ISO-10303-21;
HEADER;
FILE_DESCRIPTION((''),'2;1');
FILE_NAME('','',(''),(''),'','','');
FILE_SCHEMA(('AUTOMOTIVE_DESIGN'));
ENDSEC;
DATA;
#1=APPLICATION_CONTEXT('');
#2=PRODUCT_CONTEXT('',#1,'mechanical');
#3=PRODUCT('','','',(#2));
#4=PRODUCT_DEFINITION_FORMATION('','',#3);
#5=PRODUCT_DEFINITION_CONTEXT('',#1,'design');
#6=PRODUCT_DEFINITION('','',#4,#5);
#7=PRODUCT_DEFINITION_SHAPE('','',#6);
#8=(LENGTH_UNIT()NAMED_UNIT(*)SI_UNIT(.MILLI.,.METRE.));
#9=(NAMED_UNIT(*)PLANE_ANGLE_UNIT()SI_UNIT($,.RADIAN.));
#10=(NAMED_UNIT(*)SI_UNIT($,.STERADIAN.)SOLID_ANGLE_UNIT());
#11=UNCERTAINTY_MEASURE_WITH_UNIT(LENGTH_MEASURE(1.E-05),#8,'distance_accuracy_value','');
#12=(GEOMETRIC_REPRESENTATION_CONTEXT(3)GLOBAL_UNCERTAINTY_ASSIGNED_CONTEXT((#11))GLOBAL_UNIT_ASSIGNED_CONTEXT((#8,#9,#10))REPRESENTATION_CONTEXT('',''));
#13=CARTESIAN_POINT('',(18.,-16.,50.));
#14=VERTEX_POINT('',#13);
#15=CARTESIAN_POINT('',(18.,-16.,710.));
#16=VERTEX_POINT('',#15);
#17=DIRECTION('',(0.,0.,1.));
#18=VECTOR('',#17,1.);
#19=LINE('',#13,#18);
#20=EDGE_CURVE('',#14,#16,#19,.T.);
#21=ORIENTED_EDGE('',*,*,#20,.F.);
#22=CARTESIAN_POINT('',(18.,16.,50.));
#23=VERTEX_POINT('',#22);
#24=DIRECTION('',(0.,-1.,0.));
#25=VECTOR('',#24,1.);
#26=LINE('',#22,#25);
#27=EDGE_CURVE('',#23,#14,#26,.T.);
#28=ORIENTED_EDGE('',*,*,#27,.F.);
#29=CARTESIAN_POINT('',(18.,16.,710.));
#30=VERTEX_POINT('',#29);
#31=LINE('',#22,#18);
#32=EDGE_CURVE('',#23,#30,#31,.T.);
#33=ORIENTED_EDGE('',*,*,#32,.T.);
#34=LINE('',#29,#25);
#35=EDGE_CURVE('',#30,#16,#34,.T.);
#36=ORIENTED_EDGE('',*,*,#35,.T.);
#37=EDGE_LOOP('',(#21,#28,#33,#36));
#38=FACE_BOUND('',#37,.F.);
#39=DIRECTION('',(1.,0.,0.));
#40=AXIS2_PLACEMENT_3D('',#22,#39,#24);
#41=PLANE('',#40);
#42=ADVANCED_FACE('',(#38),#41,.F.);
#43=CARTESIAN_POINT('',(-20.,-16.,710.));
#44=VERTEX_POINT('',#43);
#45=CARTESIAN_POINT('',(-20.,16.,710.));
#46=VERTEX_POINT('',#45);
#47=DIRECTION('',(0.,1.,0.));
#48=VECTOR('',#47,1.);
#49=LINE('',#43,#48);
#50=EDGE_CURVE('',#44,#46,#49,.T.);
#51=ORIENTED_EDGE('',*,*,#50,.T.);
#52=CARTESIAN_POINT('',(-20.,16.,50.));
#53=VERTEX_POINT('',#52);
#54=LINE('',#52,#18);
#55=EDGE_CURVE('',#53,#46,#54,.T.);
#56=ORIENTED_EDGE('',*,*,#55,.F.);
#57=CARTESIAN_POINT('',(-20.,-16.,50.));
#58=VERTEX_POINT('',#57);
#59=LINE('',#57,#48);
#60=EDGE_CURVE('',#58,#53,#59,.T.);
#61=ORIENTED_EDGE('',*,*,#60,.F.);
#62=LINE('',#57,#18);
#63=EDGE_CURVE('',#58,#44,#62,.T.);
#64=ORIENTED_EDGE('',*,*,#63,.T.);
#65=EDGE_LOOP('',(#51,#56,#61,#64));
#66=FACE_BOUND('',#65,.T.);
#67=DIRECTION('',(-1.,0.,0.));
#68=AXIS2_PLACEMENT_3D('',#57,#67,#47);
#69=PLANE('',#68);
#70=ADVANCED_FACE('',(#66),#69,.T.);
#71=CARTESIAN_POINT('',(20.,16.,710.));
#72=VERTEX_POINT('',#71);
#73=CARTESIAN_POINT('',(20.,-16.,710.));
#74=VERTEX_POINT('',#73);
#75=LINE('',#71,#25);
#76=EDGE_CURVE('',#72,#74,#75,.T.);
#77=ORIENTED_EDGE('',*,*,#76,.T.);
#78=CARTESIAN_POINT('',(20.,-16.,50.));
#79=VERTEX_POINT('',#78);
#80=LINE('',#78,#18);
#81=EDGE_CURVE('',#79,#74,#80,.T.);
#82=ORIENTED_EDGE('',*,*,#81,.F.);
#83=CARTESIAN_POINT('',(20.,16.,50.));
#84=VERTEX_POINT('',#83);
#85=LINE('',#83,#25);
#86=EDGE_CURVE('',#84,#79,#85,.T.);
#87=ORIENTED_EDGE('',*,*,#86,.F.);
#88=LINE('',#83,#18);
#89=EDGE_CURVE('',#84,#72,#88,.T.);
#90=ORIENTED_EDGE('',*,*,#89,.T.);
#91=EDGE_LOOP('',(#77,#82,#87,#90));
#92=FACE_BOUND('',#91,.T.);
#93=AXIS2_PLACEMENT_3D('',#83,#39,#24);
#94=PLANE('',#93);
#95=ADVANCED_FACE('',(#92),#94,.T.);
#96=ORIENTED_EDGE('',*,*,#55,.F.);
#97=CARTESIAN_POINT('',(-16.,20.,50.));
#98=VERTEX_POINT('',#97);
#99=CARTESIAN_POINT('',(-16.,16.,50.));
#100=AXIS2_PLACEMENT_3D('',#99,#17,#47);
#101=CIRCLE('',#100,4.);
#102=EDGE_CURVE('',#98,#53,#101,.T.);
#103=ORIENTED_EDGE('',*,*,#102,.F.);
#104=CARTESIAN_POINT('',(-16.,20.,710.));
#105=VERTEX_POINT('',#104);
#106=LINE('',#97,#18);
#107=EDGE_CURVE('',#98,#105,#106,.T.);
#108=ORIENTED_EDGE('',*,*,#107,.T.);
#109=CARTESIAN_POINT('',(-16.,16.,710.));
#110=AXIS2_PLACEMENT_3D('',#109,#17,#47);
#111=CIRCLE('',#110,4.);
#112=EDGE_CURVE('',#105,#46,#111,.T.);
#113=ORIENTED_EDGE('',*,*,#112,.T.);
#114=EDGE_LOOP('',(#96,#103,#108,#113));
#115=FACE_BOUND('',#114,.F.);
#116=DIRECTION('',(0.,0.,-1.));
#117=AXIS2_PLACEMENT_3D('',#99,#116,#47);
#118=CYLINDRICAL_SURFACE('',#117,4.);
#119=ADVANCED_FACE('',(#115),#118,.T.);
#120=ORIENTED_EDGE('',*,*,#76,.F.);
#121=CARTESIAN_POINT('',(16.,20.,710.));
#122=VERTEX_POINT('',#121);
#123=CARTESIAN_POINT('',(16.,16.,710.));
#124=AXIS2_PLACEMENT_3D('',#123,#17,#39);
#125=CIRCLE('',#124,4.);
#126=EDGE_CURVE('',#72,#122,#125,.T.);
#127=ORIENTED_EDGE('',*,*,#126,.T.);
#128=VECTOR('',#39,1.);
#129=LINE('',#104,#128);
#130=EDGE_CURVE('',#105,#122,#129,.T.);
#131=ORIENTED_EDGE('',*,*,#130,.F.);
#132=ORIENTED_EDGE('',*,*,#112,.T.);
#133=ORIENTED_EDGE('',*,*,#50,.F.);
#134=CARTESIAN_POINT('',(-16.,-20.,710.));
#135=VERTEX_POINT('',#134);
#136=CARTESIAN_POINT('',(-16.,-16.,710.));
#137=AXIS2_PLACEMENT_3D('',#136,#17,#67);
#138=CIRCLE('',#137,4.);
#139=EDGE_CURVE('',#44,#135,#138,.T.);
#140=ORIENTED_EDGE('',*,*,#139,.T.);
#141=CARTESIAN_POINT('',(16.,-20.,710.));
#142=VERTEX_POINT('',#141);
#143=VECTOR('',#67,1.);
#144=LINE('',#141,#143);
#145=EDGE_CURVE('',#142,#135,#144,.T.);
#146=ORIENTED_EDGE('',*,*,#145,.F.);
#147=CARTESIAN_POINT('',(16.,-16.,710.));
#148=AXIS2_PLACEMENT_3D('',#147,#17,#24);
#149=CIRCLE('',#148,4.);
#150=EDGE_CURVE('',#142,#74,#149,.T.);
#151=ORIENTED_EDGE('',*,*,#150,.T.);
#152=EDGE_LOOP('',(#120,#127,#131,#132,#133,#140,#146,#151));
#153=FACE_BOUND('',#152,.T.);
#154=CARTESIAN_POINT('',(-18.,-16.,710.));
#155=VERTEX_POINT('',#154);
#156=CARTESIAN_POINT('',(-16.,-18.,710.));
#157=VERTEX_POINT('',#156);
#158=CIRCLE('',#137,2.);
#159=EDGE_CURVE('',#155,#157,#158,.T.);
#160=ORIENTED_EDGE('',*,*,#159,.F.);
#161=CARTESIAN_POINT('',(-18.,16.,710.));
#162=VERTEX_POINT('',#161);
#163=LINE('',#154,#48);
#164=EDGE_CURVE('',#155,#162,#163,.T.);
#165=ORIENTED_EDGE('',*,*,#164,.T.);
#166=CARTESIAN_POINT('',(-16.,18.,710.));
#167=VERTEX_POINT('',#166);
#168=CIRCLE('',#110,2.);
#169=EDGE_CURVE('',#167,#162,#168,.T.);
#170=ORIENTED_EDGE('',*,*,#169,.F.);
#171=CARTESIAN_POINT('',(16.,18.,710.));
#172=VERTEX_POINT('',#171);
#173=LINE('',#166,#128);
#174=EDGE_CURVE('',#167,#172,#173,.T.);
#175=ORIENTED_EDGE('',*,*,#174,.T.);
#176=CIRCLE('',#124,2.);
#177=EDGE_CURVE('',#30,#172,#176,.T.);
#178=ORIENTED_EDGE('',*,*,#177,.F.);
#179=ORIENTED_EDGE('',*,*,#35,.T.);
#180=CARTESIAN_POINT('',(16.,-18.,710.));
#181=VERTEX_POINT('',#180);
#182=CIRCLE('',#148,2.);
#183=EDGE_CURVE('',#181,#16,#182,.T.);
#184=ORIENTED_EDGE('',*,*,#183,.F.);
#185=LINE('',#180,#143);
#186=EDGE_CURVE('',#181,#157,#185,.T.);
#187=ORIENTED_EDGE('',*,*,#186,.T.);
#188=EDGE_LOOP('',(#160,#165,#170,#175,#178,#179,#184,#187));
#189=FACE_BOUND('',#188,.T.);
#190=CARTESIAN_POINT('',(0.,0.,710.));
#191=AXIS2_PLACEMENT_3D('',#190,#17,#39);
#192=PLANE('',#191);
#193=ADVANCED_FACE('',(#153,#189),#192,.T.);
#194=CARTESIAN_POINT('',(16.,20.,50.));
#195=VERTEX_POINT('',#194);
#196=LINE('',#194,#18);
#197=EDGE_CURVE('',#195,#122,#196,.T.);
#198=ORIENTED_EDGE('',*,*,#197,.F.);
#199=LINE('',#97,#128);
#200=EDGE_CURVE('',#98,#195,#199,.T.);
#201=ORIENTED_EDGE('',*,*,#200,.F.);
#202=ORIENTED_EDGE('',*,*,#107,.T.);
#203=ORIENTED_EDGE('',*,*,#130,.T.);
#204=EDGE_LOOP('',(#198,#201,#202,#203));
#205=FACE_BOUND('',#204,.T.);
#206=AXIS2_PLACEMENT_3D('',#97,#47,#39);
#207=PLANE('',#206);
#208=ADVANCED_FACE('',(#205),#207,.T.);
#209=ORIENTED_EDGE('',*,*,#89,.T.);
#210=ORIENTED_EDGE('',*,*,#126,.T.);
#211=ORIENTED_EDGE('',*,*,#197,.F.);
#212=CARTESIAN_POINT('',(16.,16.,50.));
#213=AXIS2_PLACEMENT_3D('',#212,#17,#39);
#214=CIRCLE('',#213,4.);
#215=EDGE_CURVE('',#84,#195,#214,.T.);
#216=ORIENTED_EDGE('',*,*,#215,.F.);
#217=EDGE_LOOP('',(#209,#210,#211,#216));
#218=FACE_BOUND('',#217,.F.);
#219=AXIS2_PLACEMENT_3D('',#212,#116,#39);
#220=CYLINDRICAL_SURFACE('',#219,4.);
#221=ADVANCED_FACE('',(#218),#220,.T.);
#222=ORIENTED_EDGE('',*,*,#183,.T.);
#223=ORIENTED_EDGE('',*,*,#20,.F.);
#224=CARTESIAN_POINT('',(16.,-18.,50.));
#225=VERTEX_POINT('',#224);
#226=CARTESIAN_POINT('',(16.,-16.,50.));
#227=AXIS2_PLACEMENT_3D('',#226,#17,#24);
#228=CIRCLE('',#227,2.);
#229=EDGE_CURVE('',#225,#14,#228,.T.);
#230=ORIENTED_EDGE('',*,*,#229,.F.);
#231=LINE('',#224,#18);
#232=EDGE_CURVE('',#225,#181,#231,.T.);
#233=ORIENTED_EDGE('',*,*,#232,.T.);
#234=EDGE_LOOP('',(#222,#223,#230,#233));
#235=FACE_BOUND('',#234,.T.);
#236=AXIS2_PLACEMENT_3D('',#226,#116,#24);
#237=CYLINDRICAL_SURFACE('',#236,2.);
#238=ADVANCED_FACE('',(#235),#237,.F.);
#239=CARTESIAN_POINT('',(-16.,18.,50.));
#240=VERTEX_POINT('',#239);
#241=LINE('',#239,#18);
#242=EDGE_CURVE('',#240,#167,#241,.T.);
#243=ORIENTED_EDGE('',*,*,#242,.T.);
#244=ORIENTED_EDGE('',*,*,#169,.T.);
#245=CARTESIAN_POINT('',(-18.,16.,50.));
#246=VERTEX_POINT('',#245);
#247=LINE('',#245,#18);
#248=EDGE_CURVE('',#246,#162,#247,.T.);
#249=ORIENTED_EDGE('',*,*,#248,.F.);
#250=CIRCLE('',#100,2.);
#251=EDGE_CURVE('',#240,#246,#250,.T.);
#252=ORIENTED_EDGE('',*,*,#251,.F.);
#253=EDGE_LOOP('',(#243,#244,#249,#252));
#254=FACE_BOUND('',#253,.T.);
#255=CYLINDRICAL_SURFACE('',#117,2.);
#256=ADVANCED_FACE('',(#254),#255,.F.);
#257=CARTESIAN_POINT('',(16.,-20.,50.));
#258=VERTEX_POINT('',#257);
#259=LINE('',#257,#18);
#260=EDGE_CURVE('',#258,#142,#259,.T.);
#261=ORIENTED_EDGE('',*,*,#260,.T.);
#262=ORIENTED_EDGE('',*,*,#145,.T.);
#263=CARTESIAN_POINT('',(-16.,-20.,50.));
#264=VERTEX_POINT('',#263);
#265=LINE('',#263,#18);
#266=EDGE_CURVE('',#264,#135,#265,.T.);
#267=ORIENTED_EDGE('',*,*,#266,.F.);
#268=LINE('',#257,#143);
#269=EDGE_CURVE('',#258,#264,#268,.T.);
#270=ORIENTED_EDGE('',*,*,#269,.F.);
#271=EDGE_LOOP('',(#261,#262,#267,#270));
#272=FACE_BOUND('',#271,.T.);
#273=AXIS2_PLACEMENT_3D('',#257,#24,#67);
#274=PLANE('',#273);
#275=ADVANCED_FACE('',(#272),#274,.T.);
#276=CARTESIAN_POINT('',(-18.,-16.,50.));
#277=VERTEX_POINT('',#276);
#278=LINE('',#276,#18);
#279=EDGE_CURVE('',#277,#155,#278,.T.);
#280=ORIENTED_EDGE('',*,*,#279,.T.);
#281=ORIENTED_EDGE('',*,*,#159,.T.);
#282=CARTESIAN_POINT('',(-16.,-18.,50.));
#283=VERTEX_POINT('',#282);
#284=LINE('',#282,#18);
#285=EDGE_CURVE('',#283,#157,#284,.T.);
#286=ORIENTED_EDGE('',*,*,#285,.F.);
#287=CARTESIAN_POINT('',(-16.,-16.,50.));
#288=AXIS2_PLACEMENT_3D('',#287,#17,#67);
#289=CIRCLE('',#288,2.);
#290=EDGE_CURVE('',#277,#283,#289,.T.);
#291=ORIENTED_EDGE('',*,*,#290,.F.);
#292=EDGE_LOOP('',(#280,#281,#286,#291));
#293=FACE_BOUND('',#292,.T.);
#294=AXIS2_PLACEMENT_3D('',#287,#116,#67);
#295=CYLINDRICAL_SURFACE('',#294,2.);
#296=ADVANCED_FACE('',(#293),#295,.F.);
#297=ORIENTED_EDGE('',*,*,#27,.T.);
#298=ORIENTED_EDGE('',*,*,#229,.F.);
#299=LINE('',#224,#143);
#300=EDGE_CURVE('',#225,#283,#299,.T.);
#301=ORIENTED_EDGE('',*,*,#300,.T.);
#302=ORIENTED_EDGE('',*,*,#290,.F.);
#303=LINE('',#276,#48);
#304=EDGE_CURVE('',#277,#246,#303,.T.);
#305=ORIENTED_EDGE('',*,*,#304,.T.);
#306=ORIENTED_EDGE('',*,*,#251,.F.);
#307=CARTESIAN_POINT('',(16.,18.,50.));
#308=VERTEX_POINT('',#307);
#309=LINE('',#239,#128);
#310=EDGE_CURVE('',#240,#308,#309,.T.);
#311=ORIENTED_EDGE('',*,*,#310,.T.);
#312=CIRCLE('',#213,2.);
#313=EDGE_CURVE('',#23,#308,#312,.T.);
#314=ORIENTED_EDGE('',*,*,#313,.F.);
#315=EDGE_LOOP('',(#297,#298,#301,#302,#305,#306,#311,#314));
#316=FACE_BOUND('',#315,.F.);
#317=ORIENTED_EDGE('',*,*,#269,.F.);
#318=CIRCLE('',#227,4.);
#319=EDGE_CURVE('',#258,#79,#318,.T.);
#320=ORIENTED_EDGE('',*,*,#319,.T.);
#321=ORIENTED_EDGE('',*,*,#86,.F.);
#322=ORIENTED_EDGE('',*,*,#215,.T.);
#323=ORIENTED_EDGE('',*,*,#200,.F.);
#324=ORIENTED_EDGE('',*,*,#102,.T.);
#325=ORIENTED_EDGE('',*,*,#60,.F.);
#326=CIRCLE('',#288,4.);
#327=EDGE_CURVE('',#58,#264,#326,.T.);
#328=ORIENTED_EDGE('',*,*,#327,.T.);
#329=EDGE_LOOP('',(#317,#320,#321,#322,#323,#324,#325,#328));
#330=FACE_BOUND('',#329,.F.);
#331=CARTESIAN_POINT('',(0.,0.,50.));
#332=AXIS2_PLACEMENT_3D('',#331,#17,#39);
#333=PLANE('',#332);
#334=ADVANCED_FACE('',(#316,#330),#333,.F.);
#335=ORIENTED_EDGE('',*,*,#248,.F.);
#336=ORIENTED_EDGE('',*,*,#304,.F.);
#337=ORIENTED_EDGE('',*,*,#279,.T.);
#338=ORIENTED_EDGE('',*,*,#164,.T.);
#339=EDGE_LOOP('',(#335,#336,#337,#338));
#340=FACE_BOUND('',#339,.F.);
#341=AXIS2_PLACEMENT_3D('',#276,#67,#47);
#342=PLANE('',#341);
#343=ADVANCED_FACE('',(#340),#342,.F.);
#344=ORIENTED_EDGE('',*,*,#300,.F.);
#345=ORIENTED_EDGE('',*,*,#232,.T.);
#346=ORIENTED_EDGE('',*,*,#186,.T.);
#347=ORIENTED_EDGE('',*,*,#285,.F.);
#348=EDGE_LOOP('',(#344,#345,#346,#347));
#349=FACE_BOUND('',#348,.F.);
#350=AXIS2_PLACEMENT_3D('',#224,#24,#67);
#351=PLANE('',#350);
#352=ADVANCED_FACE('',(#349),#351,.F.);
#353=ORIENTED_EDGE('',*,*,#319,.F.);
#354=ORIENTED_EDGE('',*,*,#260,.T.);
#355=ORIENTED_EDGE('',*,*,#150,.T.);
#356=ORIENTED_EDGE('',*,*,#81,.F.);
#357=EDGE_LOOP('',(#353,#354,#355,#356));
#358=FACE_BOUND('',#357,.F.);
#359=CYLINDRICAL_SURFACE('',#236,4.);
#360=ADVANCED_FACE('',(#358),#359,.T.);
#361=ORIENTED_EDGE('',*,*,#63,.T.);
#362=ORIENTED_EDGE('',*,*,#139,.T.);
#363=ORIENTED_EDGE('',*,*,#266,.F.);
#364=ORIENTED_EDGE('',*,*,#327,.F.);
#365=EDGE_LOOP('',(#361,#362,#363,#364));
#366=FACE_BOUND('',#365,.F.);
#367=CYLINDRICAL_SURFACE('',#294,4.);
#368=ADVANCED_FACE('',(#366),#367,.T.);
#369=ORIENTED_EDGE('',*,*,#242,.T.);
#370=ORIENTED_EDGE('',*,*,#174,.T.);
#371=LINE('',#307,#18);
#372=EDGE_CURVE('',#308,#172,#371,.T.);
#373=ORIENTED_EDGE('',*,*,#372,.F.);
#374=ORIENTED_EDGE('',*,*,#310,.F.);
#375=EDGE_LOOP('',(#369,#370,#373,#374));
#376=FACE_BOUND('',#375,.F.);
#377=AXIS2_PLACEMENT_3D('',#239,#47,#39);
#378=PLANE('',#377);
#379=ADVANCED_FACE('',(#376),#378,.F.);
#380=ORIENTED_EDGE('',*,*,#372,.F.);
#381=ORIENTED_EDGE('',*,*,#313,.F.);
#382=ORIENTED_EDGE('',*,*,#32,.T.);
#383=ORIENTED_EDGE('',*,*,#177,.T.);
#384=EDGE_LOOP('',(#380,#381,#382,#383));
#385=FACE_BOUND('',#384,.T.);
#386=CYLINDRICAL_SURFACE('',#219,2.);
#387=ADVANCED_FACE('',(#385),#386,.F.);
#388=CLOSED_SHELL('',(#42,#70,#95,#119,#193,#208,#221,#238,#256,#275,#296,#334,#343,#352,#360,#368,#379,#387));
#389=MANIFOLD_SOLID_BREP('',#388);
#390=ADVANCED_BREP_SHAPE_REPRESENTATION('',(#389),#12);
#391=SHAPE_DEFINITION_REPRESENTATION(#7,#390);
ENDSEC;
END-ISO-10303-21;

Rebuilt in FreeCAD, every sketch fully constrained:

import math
import FreeCAD as App
import Part
import Sketcher

V = App.Vector

doc = App.newDocument("Part")
body = doc.addObject("PartDesign::Body", "Body")

# Sketch on XY plane
sketch1 = doc.addObject("Sketcher::SketchObject", "Sketch")
body.addObject(sketch1)
sketch1.AttachmentSupport = (doc.XY_Plane, [""])
sketch1.MapMode = "FlatFace"
sketch1.AttachmentOffset = App.Placement(V(0, 0, 50), App.Rotation())
sketch1.addGeometry([
    Part.LineSegment(V(-20, 16, 0), V(-20, -16, 0)),  # 0
    Part.ArcOfCircle(Part.Circle(V(-16, -16, 0), V(0, 0, 1), 4), math.radians(180), math.radians(270)),  # 1
    Part.LineSegment(V(-16, -20, 0), V(16, -20, 0)),  # 2
    Part.ArcOfCircle(Part.Circle(V(16, -16, 0), V(0, 0, 1), 4), math.radians(-90), math.radians(0)),  # 3
    Part.LineSegment(V(20, -16, 0), V(20, 16, 0)),  # 4
    Part.ArcOfCircle(Part.Circle(V(16, 16, 0), V(0, 0, 1), 4), math.radians(0), math.radians(90)),  # 5
    Part.LineSegment(V(16, 20, 0), V(-16, 20, 0)),  # 6
    Part.ArcOfCircle(Part.Circle(V(-16, 16, 0), V(0, 0, 1), 4), math.radians(90), math.radians(180)),  # 7
    Part.ArcOfCircle(Part.Circle(V(-16, 16, 0), V(0, 0, 1), 2), math.radians(90), math.radians(180)),  # 8
    Part.LineSegment(V(-16, 18, 0), V(16, 18, 0)),  # 9
    Part.ArcOfCircle(Part.Circle(V(16, 16, 0), V(0, 0, 1), 2), math.radians(0), math.radians(90)),  # 10
    Part.LineSegment(V(18, 16, 0), V(18, -16, 0)),  # 11
    Part.ArcOfCircle(Part.Circle(V(16, -16, 0), V(0, 0, 1), 2), math.radians(-90), math.radians(0)),  # 12
    Part.LineSegment(V(16, -18, 0), V(-16, -18, 0)),  # 13
    Part.ArcOfCircle(Part.Circle(V(-16, -16, 0), V(0, 0, 1), 2), math.radians(180), math.radians(270)),  # 14
    Part.LineSegment(V(-18, -16, 0), V(-18, 16, 0)),  # 15
], False)
sketch1.addConstraint([
    Sketcher.Constraint("Tangent", 0, 2, 1, 1),
    Sketcher.Constraint("Tangent", 1, 2, 2, 1),
    Sketcher.Constraint("Tangent", 2, 2, 3, 1),
    Sketcher.Constraint("Tangent", 3, 2, 4, 1),
    Sketcher.Constraint("Tangent", 4, 2, 5, 1),
    Sketcher.Constraint("Tangent", 5, 2, 6, 1),
    Sketcher.Constraint("Tangent", 6, 2, 7, 1),
    Sketcher.Constraint("Tangent", 7, 2, 0, 1),
    Sketcher.Constraint("Tangent", 8, 1, 9, 1),
    Sketcher.Constraint("Tangent", 9, 2, 10, 2),
    Sketcher.Constraint("Tangent", 10, 1, 11, 1),
    Sketcher.Constraint("Tangent", 11, 2, 12, 2),
    Sketcher.Constraint("Tangent", 12, 1, 13, 1),
    Sketcher.Constraint("Tangent", 13, 2, 14, 2),
    Sketcher.Constraint("Tangent", 14, 1, 15, 1),
    Sketcher.Constraint("Tangent", 15, 2, 8, 2),
    Sketcher.Constraint("Vertical", 0),
    Sketcher.Constraint("Horizontal", 2),
    Sketcher.Constraint("Vertical", 4),
    Sketcher.Constraint("Horizontal", 6),
    Sketcher.Constraint("Horizontal", 9),
    Sketcher.Constraint("Vertical", 11),
    Sketcher.Constraint("Horizontal", 13),
    Sketcher.Constraint("Vertical", 15),
    Sketcher.Constraint("Coincident", 8, 3, 7, 3),
    Sketcher.Constraint("Coincident", 10, 3, 5, 3),
    Sketcher.Constraint("Coincident", 12, 3, 3, 3),
    Sketcher.Constraint("Equal", 1, 3),
    Sketcher.Constraint("Equal", 3, 5),
    Sketcher.Constraint("Equal", 5, 7),
    Sketcher.Constraint("Equal", 12, 14),
    Sketcher.Constraint("Symmetric", 1, 3, 5, 3, -1, 1),
    Sketcher.Constraint("Equal", 13, 0),
    Sketcher.Constraint("Radius", 1, 4.0),
    Sketcher.Constraint("Radius", 8, 2.0),
    Sketcher.Constraint("DistanceX", 0, 2, -1, 1, 20.0),
])
pad1 = doc.addObject("PartDesign::Pad", "Pad")
body.addObject(pad1)
pad1.Profile = sketch1
pad1.Length = 660

doc.recompute()
